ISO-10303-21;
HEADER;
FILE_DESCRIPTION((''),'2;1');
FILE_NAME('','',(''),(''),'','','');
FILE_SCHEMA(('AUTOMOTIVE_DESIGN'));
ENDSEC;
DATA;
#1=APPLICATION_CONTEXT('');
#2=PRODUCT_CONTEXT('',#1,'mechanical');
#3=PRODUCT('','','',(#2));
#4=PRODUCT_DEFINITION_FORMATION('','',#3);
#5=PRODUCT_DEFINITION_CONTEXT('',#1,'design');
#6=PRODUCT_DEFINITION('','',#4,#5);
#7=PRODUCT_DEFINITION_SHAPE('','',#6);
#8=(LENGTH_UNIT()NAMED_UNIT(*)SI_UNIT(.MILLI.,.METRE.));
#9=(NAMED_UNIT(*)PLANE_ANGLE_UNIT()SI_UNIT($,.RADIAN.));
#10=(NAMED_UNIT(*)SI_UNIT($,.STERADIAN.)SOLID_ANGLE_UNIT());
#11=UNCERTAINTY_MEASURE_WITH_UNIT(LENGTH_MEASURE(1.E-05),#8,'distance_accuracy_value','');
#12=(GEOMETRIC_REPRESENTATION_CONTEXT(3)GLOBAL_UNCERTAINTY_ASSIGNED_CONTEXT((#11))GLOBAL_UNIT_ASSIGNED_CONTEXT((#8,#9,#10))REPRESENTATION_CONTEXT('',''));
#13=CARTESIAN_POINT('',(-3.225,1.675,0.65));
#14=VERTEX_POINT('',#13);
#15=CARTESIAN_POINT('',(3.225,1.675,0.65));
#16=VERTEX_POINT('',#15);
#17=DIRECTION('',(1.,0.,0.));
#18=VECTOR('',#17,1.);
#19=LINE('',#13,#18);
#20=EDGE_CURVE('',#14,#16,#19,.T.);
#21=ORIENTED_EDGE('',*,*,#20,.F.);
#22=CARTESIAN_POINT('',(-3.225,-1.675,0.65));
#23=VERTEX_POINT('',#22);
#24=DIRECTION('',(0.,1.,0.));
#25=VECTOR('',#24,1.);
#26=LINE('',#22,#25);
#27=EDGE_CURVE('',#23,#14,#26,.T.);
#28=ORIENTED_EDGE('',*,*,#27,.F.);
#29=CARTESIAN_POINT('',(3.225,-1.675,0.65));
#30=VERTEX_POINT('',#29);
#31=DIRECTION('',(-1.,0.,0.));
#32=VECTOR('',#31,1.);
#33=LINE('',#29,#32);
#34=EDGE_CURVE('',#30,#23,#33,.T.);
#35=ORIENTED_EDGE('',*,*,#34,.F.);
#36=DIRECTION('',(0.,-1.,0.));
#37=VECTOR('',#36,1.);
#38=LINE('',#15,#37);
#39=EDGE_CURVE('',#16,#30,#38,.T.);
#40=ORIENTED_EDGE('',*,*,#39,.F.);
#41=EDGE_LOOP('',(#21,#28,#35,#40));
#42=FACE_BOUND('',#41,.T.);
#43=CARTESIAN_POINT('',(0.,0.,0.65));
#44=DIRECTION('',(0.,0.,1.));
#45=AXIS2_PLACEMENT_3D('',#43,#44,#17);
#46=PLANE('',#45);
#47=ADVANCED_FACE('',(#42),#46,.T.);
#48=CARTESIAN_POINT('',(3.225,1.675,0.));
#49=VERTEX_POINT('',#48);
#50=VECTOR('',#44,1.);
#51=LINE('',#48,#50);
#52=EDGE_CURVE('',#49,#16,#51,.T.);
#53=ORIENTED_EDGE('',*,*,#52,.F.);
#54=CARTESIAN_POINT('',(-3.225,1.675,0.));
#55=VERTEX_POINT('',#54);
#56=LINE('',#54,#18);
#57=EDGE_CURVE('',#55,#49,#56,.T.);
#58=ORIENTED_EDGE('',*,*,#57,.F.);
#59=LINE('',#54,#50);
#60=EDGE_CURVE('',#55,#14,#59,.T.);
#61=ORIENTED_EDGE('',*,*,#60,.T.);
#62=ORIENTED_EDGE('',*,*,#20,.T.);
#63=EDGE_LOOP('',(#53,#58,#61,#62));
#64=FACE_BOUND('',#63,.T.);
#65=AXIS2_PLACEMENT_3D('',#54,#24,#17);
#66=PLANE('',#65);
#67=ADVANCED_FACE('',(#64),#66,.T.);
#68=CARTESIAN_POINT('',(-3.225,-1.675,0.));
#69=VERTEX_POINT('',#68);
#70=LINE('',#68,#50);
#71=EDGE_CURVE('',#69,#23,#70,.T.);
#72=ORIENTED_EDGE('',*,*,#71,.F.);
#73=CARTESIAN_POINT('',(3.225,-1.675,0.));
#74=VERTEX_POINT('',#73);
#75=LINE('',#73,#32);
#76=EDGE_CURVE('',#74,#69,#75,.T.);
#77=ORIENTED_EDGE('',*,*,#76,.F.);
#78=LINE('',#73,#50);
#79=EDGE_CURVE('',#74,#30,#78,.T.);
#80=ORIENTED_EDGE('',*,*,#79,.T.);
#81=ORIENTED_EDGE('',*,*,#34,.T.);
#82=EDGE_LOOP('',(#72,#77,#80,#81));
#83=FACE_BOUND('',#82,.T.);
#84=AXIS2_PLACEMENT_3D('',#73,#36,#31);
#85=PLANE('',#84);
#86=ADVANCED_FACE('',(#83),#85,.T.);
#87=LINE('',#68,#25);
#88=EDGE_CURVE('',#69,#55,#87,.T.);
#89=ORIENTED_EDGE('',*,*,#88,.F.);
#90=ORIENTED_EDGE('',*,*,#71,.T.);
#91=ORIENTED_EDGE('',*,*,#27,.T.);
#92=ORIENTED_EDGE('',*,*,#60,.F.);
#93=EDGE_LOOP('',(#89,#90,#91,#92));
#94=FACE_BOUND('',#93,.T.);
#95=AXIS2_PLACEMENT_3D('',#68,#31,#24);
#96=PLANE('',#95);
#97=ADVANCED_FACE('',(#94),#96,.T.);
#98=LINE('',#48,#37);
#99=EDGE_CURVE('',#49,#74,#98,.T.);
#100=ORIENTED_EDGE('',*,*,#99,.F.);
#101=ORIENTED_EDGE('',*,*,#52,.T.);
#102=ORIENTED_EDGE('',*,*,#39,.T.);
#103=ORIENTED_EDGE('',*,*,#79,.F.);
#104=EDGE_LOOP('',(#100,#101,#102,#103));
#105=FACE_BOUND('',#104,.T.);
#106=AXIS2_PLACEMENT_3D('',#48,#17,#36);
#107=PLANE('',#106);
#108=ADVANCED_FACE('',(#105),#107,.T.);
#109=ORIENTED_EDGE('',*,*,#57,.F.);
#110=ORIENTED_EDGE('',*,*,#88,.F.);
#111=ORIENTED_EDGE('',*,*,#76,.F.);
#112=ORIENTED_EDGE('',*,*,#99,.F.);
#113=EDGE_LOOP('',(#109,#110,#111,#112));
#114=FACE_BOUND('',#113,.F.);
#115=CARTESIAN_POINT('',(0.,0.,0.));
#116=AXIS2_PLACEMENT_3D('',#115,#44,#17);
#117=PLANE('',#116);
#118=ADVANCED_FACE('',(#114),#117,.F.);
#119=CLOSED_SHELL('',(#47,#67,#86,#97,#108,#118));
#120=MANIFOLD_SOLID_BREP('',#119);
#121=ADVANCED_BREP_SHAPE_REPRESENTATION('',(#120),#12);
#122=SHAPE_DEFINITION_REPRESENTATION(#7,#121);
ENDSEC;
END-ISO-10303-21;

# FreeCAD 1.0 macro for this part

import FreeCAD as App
import Part
import Sketcher
from FreeCAD import Vector

doc = App.newDocument("Part")
body = doc.addObject("PartDesign::Body", "Body")

sketch1 = doc.addObject("Sketcher::SketchObject", "Sketch")
body.addObject(sketch1)
sketch1.AttachmentSupport = (doc.XY_Plane, [""])
sketch1.MapMode = "FlatFace"
sketch1.addGeometry(Part.LineSegment(Vector(3.2, 1.7, 0), Vector(-3.2, 1.7, 0)), False)
sketch1.addGeometry(Part.LineSegment(Vector(-3.2, 1.7, 0), Vector(-3.2, -1.7, 0)), False)
sketch1.addGeometry(Part.LineSegment(Vector(-3.2, -1.7, 0), Vector(3.2, -1.7, 0)), False)
sketch1.addGeometry(Part.LineSegment(Vector(3.2, -1.7, 0), Vector(3.2, 1.7, 0)), False)
sketch1.addConstraint(Sketcher.Constraint("Coincident", 0, 2, 1, 1))
sketch1.addConstraint(Sketcher.Constraint("Coincident", 1, 2, 2, 1))
sketch1.addConstraint(Sketcher.Constraint("Coincident", 2, 2, 3, 1))
sketch1.addConstraint(Sketcher.Constraint("Coincident", 3, 2, 0, 1))
sketch1.addConstraint(Sketcher.Constraint("Horizontal", 0))
sketch1.addConstraint(Sketcher.Constraint("Vertical", 1))
sketch1.addConstraint(Sketcher.Constraint("Horizontal", 2))
sketch1.addConstraint(Sketcher.Constraint("Vertical", 3))
sketch1.addConstraint(Sketcher.Constraint("Symmetric", 0, 2, 2, 2, -1, 1))
sketch1.addConstraint(Sketcher.Constraint("DistanceX", 0, 2, 0, 1, 6.45))
sketch1.addConstraint(Sketcher.Constraint("DistanceY", 1, 2, 1, 1, 3.35))
pad1 = doc.addObject("PartDesign::Pad", "Pad")
body.addObject(pad1)
pad1.Profile = sketch1
pad1.Length = 0.65

doc.recompute()
